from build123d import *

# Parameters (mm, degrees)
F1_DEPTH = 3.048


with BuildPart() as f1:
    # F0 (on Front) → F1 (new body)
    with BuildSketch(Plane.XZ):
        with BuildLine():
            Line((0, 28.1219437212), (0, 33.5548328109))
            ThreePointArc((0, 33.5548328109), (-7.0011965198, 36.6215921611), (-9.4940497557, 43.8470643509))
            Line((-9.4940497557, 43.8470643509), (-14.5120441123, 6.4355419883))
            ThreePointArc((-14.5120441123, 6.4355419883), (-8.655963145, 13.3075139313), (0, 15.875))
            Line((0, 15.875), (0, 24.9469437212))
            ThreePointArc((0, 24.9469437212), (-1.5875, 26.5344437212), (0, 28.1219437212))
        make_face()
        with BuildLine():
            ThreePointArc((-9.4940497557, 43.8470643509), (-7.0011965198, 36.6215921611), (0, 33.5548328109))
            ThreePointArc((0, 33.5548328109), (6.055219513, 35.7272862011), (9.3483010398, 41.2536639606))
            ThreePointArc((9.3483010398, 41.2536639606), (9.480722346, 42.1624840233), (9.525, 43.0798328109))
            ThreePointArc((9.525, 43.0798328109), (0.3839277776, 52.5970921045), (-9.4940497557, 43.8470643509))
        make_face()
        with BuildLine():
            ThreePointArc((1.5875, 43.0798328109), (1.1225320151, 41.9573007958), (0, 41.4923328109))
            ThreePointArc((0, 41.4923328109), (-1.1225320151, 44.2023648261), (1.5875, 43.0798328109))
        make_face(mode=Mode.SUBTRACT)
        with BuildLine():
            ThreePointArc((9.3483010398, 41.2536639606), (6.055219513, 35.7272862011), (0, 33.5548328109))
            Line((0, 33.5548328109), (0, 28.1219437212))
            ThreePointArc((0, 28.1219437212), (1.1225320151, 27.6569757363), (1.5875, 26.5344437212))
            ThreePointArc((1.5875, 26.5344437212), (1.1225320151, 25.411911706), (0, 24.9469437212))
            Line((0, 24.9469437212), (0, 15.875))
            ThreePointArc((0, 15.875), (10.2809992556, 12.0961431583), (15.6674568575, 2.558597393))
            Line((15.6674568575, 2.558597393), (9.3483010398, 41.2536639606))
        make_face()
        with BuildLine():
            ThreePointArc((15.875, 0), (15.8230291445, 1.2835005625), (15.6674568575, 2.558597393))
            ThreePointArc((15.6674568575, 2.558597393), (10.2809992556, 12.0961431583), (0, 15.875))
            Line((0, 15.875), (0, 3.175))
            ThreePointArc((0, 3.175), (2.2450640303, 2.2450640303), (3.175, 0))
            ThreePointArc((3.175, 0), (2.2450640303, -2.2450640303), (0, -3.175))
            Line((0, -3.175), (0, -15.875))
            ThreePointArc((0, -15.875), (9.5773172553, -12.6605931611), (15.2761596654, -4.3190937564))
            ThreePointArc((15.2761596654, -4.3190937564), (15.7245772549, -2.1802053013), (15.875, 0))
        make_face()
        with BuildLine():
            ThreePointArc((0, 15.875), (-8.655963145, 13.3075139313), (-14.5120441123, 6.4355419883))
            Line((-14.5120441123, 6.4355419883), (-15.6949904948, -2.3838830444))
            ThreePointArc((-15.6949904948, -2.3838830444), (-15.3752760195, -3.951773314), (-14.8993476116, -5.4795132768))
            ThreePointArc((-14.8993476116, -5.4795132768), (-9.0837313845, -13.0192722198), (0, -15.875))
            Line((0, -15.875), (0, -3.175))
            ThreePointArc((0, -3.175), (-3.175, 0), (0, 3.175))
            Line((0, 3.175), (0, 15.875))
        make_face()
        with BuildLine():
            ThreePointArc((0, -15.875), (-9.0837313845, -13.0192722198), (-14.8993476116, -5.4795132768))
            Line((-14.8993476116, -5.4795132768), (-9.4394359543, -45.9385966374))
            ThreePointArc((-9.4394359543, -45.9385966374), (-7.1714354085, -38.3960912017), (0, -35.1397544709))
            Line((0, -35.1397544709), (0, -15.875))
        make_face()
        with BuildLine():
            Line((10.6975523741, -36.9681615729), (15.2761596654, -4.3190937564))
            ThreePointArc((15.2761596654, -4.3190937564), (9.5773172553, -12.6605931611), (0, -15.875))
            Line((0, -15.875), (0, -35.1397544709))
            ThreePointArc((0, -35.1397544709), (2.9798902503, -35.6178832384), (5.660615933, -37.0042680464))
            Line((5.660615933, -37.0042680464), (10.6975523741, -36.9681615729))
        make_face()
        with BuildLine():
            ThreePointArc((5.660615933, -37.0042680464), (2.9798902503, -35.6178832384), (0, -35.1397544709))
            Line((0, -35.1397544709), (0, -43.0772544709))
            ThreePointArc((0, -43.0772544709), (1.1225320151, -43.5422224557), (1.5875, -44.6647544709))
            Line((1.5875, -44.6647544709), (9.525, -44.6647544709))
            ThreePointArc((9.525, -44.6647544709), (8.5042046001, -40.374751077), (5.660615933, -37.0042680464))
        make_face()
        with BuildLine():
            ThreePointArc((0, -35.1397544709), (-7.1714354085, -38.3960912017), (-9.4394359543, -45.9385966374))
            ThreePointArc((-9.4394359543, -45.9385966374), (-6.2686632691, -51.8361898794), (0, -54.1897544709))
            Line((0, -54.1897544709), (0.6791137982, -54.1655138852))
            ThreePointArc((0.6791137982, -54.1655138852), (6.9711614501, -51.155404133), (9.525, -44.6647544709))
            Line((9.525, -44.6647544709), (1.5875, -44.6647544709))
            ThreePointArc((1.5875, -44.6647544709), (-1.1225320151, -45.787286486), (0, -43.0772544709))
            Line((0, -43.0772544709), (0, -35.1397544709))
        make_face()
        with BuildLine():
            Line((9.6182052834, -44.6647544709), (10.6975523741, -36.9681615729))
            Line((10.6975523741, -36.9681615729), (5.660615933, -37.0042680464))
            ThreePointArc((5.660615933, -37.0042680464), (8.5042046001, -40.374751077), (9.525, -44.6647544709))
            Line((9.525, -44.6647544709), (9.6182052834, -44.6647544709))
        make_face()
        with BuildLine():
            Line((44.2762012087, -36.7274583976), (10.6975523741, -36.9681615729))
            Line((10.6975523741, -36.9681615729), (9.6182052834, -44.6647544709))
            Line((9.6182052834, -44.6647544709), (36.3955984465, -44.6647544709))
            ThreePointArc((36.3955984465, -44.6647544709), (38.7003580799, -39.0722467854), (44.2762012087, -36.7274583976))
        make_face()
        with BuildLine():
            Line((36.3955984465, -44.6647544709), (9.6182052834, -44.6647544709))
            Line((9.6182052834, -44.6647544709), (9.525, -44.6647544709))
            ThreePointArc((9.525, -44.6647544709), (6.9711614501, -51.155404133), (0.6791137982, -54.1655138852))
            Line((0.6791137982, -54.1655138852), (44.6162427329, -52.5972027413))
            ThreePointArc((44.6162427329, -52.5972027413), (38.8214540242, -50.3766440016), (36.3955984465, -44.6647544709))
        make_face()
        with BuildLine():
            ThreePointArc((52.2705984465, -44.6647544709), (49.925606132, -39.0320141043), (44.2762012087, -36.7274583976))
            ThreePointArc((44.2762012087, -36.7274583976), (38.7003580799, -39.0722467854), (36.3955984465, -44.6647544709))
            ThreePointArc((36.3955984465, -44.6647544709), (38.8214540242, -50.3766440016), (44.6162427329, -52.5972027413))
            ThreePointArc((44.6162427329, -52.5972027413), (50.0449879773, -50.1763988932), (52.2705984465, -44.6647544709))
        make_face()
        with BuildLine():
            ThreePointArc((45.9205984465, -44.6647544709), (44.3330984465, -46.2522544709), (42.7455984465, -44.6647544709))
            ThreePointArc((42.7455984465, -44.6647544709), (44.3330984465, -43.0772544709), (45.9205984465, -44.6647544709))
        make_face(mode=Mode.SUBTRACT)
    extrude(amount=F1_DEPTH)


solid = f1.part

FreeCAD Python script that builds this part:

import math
import FreeCAD as App
import Part
import Sketcher

V = App.Vector
Q = App.Units.Quantity

doc = App.newDocument("Part")
body = doc.addObject("PartDesign::Body", "Body")

# Sketch on XZ plane
sketch1 = doc.addObject("Sketcher::SketchObject", "Sketch")
body.addObject(sketch1)
sketch1.AttachmentSupport = (doc.XZ_Plane, [""])
sketch1.MapMode = "FlatFace"
sketch1.addGeometry([
    Part.ArcOfCircle(Part.Circle(V(0, 43.1, 0), V(0, 0, 1), 9.5), math.radians(-11.05), math.radians(0)),  # 0
    Part.ArcOfCircle(Part.Circle(V(0, 43.1, 0), V(0, 0, 1), 9.5), math.radians(0), math.radians(175)),  # 1
    Part.LineSegment(V(-9.5, 43.8, 0), V(-15.7, -2.4, 0)),  # 2
    Part.ArcOfCircle(Part.Circle(V(0, 0, 0), V(0, 0, 1), 15.9), math.radians(-171.36), math.radians(-159.81)),  # 3
    Part.LineSegment(V(-14.9, -5.5, 0), V(-9.4, -45.9, 0)),  # 4
    Part.ArcOfCircle(Part.Circle(V(0, -44.7, 0), V(0, 0, 1), 9.5), math.radians(-172), math.radians(-90)),  # 5
    Part.LineSegment(V(0, -54.2, 0), V(0.7, -54.2, 0)),  # 6
    Part.LineSegment(V(0.7, -54.2, 0), V(44.6, -52.6, 0)),  # 7
    Part.ArcOfCircle(Part.Circle(V(44.3, -44.7, 0), V(0, 0, 1), 7.9), math.radians(-88), math.radians(0)),  # 8
    Part.ArcOfCircle(Part.Circle(V(44.3, -44.7, 0), V(0, 0, 1), 7.9), math.radians(0), math.radians(90)),  # 9
    Part.LineSegment(V(44.3, -36.7, 0), V(10.7, -37, 0)),  # 10
    Part.LineSegment(V(10.7, -37, 0), V(15.3, -4.3, 0)),  # 11
    Part.ArcOfCircle(Part.Circle(V(0, 0, 0), V(0, 0, 1), 15.9), math.radians(-15.79), math.radians(0)),  # 12
    Part.ArcOfCircle(Part.Circle(V(0, 0, 0), V(0, 0, 1), 15.9), math.radians(0), math.radians(9.27)),  # 13
    Part.LineSegment(V(15.7, 2.6, 0), V(9.3, 41.3, 0)),  # 14
    Part.ArcOfCircle(Part.Circle(V(0, -44.7, 0), V(0, 0, 1), 1.6), math.radians(0), math.radians(90)),  # 15
    Part.ArcOfCircle(Part.Circle(V(0, -44.7, 0), V(0, 0, 1), 1.6), math.radians(90), math.radians(360)),  # 16
    Part.Circle(V(44.3, -44.7, 0), V(0, 0, 1), 1.6),  # 17
    Part.ArcOfCircle(Part.Circle(V(0, 0, 0), V(0, 0, 1), 3.2), math.radians(0), math.radians(90)),  # 18
    Part.ArcOfCircle(Part.Circle(V(0, 0, 0), V(0, 0, 1), 3.2), math.radians(-90), math.radians(0)),  # 19
    Part.ArcOfCircle(Part.Circle(V(0, 0, 0), V(0, 0, 1), 3.2), math.radians(90), math.radians(270)),  # 20
    Part.ArcOfCircle(Part.Circle(V(0, 26.5, 0), V(0, 0, 1), 1.6), math.radians(90), math.radians(270)),  # 21
    Part.ArcOfCircle(Part.Circle(V(0, 26.5, 0), V(0, 0, 1), 1.6), math.radians(0), math.radians(90)),  # 22
    Part.ArcOfCircle(Part.Circle(V(0, 26.5, 0), V(0, 0, 1), 1.6), math.radians(-90), math.radians(0)),  # 23
    Part.ArcOfCircle(Part.Circle(V(0, 43.1, 0), V(0, 0, 1), 1.6), math.radians(0), math.radians(270)),  # 24
    Part.ArcOfCircle(Part.Circle(V(0, 43.1, 0), V(0, 0, 1), 1.6), math.radians(-90), math.radians(0)),  # 25
], False)
sketch1.addConstraint([
    Sketcher.Constraint("Tangent", 0, 2, 1, 1),
    Sketcher.Constraint("Coincident", 1, 2, 2, 1),
    Sketcher.Constraint("Coincident", 2, 2, 3, 1),
    Sketcher.Constraint("Coincident", 3, 2, 4, 1),
    Sketcher.Constraint("Tangent", 4, 2, 5, 1),
    Sketcher.Constraint("Coincident", 5, 2, 6, 1),
    Sketcher.Constraint("Coincident", 6, 2, 7, 1),
    Sketcher.Constraint("Tangent", 7, 2, 8, 1),
    Sketcher.Constraint("Tangent", 8, 2, 9, 1),
    Sketcher.Constraint("Tangent", 9, 2, 10, 1),
    Sketcher.Constraint("Coincident", 10, 2, 11, 1),
    Sketcher.Constraint("Coincident", 11, 2, 12, 1),
    Sketcher.Constraint("Tangent", 12, 2, 13, 1),
    Sketcher.Constraint("Tangent", 13, 2, 14, 1),
    Sketcher.Constraint("Coincident", 14, 2, 0, 1),
    Sketcher.Constraint("Tangent", 15, 1, 16, 2),
    Sketcher.Constraint("Coincident", 16, 1, 15, 2),
    Sketcher.Constraint("Tangent", 18, 1, 19, 2),
    Sketcher.Constraint("Tangent", 19, 1, 20, 2),
    Sketcher.Constraint("Tangent", 20, 1, 18, 2),
    Sketcher.Constraint("Tangent", 21, 1, 22, 2),
    Sketcher.Constraint("Tangent", 22, 1, 23, 2),
    Sketcher.Constraint("Tangent", 23, 1, 21, 2),
    Sketcher.Constraint("Tangent", 24, 1, 25, 2),
    Sketcher.Constraint("Coincident", 25, 1, 24, 2),
    Sketcher.Constraint("Coincident", 3, 3, -1, 1),
    Sketcher.Constraint("Coincident", 12, 3, -1, 1),
    Sketcher.Constraint("Coincident", 18, 3, -1, 1),
    Sketcher.Constraint("Coincident", 15, 3, 5, 3),
    Sketcher.Constraint("Coincident", 17, 3, 8, 3),
    Sketcher.Constraint("Coincident", 24, 3, 0, 3),
    Sketcher.Constraint("Equal", 0, 1),
    Sketcher.Constraint("Equal", 1, 5),
    Sketcher.Constraint("Equal", 8, 9),
    Sketcher.Constraint("Equal", 3, 12),
    Sketcher.Constraint("Equal", 12, 13),
    Sketcher.Constraint("Equal", 16, 17),
    Sketcher.Constraint("Equal", 17, 21),
    Sketcher.Constraint("Equal", 23, 24),
    Sketcher.Constraint("PointOnObject", 0, 3, -2),
    Sketcher.Constraint("PointOnObject", 5, 3, -2),
    Sketcher.Constraint("PointOnObject", 21, 3, -2),
    Sketcher.Constraint("PointOnObject", 5, 2, -2),
    Sketcher.Constraint("PointOnObject", 12, 2, -1),
    Sketcher.Constraint("PointOnObject", 16, 1, -2),
    Sketcher.Constraint("PointOnObject", 18, 1, -1),
    Sketcher.Constraint("PointOnObject", 19, 1, -2),
    Sketcher.Constraint("PointOnObject", 20, 1, -2),
    Sketcher.Constraint("PointOnObject", 21, 1, -2),
    Sketcher.Constraint("PointOnObject", 23, 1, -2),
    Sketcher.Constraint("PointOnObject", 25, 1, -2),
    Sketcher.Constraint("Parallel", 6, 7),
    Sketcher.Constraint("Horizontal", 5, 3, 8, 3),
    Sketcher.Constraint("Horizontal", 25, 3, 0, 2),
    Sketcher.Constraint("Horizontal", 17, 3, 8, 2),
    Sketcher.Constraint("Horizontal", 8, 2, 15, 1),
    Sketcher.Constraint("Horizontal", 23, 3, 22, 1),
    Sketcher.Constraint("Horizontal", 0, 2, 24, 1),
    Sketcher.Constraint("Diameter", 17, Q("0.125 in")),
    Sketcher.Constraint("Radius", 0, Q("0.375 in")),
    Sketcher.Constraint("Radius", 3, Q("0.625 in")),
    Sketcher.Constraint("Radius", 8, Q("0.3125 in")),
    Sketcher.Constraint("Radius", 18, Q("0.125 in")),
    Sketcher.Constraint("DistanceX", -1, 1, 8, 3, Q("44.333098 mm")),
    Sketcher.Constraint("DistanceX", -1, 1, 9, 2, Q("44.276201 mm")),
    Sketcher.Constraint("DistanceX", -1, 1, 14, 2, Q("9.348301 mm")),
    Sketcher.Constraint("Distance", 2, Q("46.644959 mm")),
    Sketcher.Constraint("Distance", 7, Q("43.96511 mm")),
    Sketcher.Constraint("Distance", 10, Q("33.579512 mm")),
    Sketcher.Constraint("Distance", 11, Q("32.96855 mm")),
    Sketcher.Constraint("Distance", 14, Q("39.207651 mm")),
    Sketcher.Constraint("DistanceX", 1, 2, -1, 1, Q("9.49405 mm")),
    Sketcher.Constraint("DistanceY", 9, 2, -1, 1, Q("36.727458 mm")),
    Sketcher.Constraint("DistanceY", 21, 3, 0, 3, Q("16.545389 mm")),
    Sketcher.Constraint("DistanceY", 3, 2, 2, 2, Q("3.09563 mm")),
])
pad1 = doc.addObject("PartDesign::Pad", "Pad")
body.addObject(pad1)
pad1.Profile = sketch1
pad1.Length = Q("0.12 in")

doc.recompute()
